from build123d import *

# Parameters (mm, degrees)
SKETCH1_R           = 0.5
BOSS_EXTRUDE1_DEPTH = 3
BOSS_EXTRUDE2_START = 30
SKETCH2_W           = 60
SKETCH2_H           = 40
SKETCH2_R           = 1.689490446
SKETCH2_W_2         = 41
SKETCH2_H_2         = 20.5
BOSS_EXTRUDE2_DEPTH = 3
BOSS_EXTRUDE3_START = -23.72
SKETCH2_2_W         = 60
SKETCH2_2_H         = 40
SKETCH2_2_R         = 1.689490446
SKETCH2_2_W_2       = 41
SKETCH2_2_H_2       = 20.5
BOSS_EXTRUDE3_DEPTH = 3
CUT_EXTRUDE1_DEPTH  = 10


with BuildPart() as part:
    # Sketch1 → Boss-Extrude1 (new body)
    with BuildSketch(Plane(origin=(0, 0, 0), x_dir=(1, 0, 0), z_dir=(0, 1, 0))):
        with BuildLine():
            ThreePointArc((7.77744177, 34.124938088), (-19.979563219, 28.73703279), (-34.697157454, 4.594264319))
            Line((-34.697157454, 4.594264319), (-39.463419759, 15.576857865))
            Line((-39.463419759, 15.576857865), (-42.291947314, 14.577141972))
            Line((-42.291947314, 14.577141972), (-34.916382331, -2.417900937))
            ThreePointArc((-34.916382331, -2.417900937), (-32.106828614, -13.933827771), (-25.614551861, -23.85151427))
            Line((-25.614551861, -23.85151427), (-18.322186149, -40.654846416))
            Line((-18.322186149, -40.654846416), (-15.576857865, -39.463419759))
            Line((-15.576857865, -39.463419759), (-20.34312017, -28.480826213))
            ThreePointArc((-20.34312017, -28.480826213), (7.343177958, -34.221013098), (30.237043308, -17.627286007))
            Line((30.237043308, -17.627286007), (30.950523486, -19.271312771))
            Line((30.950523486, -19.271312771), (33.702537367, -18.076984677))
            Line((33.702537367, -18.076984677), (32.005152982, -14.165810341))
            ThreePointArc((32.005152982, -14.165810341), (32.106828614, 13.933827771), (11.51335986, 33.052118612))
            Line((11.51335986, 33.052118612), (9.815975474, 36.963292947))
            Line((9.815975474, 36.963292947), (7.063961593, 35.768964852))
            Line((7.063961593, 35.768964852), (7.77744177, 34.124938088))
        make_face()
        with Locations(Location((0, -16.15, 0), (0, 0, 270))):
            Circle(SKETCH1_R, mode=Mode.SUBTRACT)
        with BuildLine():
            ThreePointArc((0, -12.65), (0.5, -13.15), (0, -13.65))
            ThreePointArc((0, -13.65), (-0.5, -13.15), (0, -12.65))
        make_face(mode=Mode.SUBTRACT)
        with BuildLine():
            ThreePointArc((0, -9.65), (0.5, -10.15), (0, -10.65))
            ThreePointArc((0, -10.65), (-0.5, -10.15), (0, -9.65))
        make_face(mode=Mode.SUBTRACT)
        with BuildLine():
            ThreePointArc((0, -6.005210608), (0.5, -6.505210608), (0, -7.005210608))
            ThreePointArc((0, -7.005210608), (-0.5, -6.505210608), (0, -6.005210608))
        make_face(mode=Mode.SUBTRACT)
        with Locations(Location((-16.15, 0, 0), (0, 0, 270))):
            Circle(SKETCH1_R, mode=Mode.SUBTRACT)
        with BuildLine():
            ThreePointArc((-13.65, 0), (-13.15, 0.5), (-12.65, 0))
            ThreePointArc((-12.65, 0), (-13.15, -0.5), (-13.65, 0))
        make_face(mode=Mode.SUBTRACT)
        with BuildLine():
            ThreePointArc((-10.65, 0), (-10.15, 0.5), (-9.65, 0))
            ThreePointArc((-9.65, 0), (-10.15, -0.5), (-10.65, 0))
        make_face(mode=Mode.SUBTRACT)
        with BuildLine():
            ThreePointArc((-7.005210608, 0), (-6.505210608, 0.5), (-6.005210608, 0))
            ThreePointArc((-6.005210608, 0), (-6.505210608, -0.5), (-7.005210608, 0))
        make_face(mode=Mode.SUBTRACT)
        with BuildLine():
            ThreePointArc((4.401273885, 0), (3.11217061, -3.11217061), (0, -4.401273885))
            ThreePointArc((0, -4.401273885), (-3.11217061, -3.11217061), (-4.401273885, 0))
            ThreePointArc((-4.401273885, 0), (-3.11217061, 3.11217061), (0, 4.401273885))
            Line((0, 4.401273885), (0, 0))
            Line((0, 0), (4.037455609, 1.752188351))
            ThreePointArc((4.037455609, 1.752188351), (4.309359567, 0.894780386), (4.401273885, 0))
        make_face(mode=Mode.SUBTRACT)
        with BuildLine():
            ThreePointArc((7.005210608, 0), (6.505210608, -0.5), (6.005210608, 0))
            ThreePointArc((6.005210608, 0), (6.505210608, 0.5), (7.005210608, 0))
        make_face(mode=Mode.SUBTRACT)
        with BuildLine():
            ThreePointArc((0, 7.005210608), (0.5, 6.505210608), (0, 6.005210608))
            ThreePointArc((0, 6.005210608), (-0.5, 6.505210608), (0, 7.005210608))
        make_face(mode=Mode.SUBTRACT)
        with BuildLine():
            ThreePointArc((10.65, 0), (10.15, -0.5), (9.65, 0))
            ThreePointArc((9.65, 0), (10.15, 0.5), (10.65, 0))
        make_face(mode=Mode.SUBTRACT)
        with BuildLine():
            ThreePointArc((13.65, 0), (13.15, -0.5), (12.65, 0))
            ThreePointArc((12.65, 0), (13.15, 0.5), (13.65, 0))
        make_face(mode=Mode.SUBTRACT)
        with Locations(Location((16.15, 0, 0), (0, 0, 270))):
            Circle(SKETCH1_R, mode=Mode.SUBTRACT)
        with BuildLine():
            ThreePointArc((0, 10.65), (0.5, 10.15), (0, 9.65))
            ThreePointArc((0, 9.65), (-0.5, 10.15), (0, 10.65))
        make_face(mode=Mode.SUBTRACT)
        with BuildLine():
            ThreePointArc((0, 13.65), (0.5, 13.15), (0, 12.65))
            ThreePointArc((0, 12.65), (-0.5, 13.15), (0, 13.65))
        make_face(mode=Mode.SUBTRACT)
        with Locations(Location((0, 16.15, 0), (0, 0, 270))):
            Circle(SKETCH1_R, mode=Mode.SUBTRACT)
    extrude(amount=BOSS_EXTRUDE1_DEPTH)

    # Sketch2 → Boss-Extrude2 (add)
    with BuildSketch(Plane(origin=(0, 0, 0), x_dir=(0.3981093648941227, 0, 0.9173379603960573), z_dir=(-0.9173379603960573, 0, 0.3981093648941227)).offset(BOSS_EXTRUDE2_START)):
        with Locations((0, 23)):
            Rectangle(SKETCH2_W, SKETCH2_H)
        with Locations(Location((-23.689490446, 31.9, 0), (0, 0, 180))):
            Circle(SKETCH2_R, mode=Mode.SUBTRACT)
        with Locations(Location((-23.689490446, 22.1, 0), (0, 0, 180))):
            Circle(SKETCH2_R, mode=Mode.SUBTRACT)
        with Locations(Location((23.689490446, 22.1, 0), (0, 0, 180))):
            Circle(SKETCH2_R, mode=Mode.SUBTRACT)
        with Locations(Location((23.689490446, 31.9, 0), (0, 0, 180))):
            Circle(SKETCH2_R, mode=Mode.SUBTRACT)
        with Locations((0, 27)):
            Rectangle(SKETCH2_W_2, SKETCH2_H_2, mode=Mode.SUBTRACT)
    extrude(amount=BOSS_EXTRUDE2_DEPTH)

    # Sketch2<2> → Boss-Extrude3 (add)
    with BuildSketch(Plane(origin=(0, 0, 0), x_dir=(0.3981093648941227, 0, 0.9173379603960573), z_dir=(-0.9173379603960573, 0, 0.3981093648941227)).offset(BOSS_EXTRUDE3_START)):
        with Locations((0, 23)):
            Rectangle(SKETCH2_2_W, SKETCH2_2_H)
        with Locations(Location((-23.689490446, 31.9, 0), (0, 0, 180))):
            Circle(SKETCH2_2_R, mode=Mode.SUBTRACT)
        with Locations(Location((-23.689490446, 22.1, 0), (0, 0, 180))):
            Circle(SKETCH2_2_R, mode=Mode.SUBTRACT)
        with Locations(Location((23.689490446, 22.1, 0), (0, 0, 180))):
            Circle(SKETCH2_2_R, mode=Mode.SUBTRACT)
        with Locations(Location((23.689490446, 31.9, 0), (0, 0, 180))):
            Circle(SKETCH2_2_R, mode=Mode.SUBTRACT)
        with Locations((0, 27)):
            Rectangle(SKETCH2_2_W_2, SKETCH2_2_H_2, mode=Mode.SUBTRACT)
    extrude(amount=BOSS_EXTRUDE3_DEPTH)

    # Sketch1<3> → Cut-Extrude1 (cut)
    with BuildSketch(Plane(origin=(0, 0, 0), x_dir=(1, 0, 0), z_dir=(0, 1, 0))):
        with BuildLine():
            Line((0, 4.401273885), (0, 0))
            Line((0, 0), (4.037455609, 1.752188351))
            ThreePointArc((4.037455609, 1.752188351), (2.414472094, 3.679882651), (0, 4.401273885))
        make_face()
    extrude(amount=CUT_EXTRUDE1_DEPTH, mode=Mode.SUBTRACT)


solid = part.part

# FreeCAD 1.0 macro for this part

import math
import FreeCAD as App
import Part
import Sketcher
Q = App.Units.Quantity


def add_polygon(sketch, points):
    """Adds a closed chain of lines whose ends are joined by coincident constraints."""
    first, n = sketch.GeometryCount, len(points)
    for a, b in zip(points, points[1:] + points[:1]):
        sketch.addGeometry(Part.LineSegment(App.Vector(*a, 0), App.Vector(*b, 0)), False)
    for i in range(n):
        sketch.addConstraint(Sketcher.Constraint("Coincident", first + i, 2, first + (i + 1) % n, 1))

doc = App.newDocument("Part")
body = doc.addObject("PartDesign::Body", "Body")

# Sketch on XZ plane
sketch1 = body.newObject("Sketcher::SketchObject", "Sketch")
sketch1.AttachmentSupport = (doc.getObject("XZ_Plane"), [""])
sketch1.MapMode = "FlatFace"
sketch1.addGeometry([
    Part.ArcOfCircle(Part.Circle(App.Vector(0, 0, 0), App.Vector(0, 0, 1), 35), math.radians(-172.45732), math.radians(-77.160976)),  # 0
    Part.LineSegment(App.Vector(-34.697157, -4.594264, 0), App.Vector(-39.46342, -15.576858, 0)),  # 1
    Part.LineSegment(App.Vector(-39.46342, -15.576858, 0), App.Vector(-42.291947, -14.577142, 0)),  # 2
    Part.LineSegment(App.Vector(-42.291947, -14.577142, 0), App.Vector(-34.916382, 2.417901, 0)),  # 3
    Part.ArcOfCircle(Part.Circle(App.Vector(0, 0, 0), App.Vector(0, 0, 1), 35), math.radians(137.041235), math.radians(176.038687)),  # 4
    Part.LineSegment(App.Vector(-25.614552, 23.851514, 0), App.Vector(-18.322186, 40.654846, 0)),  # 5
    Part.LineSegment(App.Vector(-18.322186, 40.654846, 0), App.Vector(-15.576858, 39.46342, 0)),  # 6
    Part.LineSegment(App.Vector(-15.576858, 39.46342, 0), App.Vector(-20.34312, 28.480826, 0)),  # 7
    Part.ArcOfCircle(Part.Circle(App.Vector(0, 0, 0), App.Vector(0, 0, 1), 35), math.radians(30.240898), math.radians(125.537242)),  # 8
    Part.LineSegment(App.Vector(30.237043, 17.627286, 0), App.Vector(30.950523, 19.271313, 0)),  # 9
    Part.LineSegment(App.Vector(30.950523, 19.271313, 0), App.Vector(33.702537, 18.076985, 0)),  # 10
    Part.LineSegment(App.Vector(33.702537, 18.076985, 0), App.Vector(32.005153, 14.16581, 0)),  # 11
    Part.ArcOfCircle(Part.Circle(App.Vector(0, 0, 0), App.Vector(0, 0, 1), 35), math.radians(-70.794752), math.radians(23.874675)),  # 12
    Part.LineSegment(App.Vector(11.51336, -33.052119, 0), App.Vector(9.815975, -36.963293, 0)),  # 13
    Part.LineSegment(App.Vector(9.815975, -36.963293, 0), App.Vector(7.063962, -35.768965, 0)),  # 14
    Part.LineSegment(App.Vector(7.063962, -35.768965, 0), App.Vector(7.777442, -34.124938, 0)),  # 15
    Part.Circle(App.Vector(0, 16.15, 0), App.Vector(0, 0, 1), 0.5),  # 16
    Part.Circle(App.Vector(0, 13.15, 0), App.Vector(0, 0, 1), 0.5),  # 17
    Part.Circle(App.Vector(0, 10.15, 0), App.Vector(0, 0, 1), 0.5),  # 18
    Part.Circle(App.Vector(0, 6.505211, 0), App.Vector(0, 0, 1), 0.5),  # 19
    Part.Circle(App.Vector(-16.15, 0, 0), App.Vector(0, 0, 1), 0.5),  # 20
    Part.Circle(App.Vector(-13.15, 0, 0), App.Vector(0, 0, 1), 0.5),  # 21
    Part.Circle(App.Vector(-10.15, 0, 0), App.Vector(0, 0, 1), 0.5),  # 22
    Part.Circle(App.Vector(-6.505211, 0, 0), App.Vector(0, 0, 1), 0.5),  # 23
    Part.ArcOfCircle(Part.Circle(App.Vector(0, 0, 0), App.Vector(0, 0, 1), 4.401274), math.radians(-23.460039), math.radians(0)),  # 24
    Part.ArcOfCircle(Part.Circle(App.Vector(0, 0, 0), App.Vector(0, 0, 1), 4.401274), math.radians(0), math.radians(90)),  # 25
    Part.ArcOfCircle(Part.Circle(App.Vector(0, 0, 0), App.Vector(0, 0, 1), 4.401274), math.radians(90), math.radians(180)),  # 26
    Part.ArcOfCircle(Part.Circle(App.Vector(0, 0, 0), App.Vector(0, 0, 1), 4.401274), math.radians(180), math.radians(270)),  # 27
    Part.LineSegment(App.Vector(0, -4.401274, 0), App.Vector(0, 0, 0)),  # 28
    Part.LineSegment(App.Vector(0, 0, 0), App.Vector(4.037456, -1.752188, 0)),  # 29
    Part.Circle(App.Vector(6.505211, 0, 0), App.Vector(0, 0, 1), 0.5),  # 30
    Part.Circle(App.Vector(0, -6.505211, 0), App.Vector(0, 0, 1), 0.5),  # 31
    Part.Circle(App.Vector(10.15, 0, 0), App.Vector(0, 0, 1), 0.5),  # 32
    Part.Circle(App.Vector(13.15, 0, 0), App.Vector(0, 0, 1), 0.5),  # 33
    Part.Circle(App.Vector(16.15, 0, 0), App.Vector(0, 0, 1), 0.5),  # 34
    Part.Circle(App.Vector(0, -10.15, 0), App.Vector(0, 0, 1), 0.5),  # 35
    Part.Circle(App.Vector(0, -13.15, 0), App.Vector(0, 0, 1), 0.5),  # 36
    Part.Circle(App.Vector(0, -16.15, 0), App.Vector(0, 0, 1), 0.5),  # 37
], False)
sketch1.addConstraint([
    Sketcher.Constraint("Coincident", 0, 1, 1, 1),
    Sketcher.Constraint("Coincident", 1, 2, 2, 1),
    Sketcher.Constraint("Coincident", 2, 2, 3, 1),
    Sketcher.Constraint("Coincident", 3, 2, 4, 2),
    Sketcher.Constraint("Coincident", 4, 1, 5, 1),
    Sketcher.Constraint("Coincident", 5, 2, 6, 1),
    Sketcher.Constraint("Coincident", 6, 2, 7, 1),
    Sketcher.Constraint("Coincident", 7, 2, 8, 2),
    Sketcher.Constraint("Coincident", 8, 1, 9, 1),
    Sketcher.Constraint("Coincident", 9, 2, 10, 1),
    Sketcher.Constraint("Coincident", 10, 2, 11, 1),
    Sketcher.Constraint("Coincident", 11, 2, 12, 2),
    Sketcher.Constraint("Coincident", 12, 1, 13, 1),
    Sketcher.Constraint("Coincident", 13, 2, 14, 1),
    Sketcher.Constraint("Coincident", 14, 2, 15, 1),
    Sketcher.Constraint("Coincident", 15, 2, 0, 2),
    Sketcher.Constraint("Tangent", 24, 2, 25, 1),
    Sketcher.Constraint("Tangent", 25, 2, 26, 1),
    Sketcher.Constraint("Tangent", 26, 2, 27, 1),
    Sketcher.Constraint("Coincident", 27, 2, 28, 1),
    Sketcher.Constraint("Coincident", 28, 2, 29, 1),
    Sketcher.Constraint("Coincident", 29, 2, 24, 1),
    Sketcher.Constraint("Vertical", 28),
    Sketcher.Constraint("Coincident", 0, 3, -1, 1),
    Sketcher.Constraint("Coincident", 4, 3, -1, 1),
    Sketcher.Constraint("Coincident", 8, 3, -1, 1),
    Sketcher.Constraint("Coincident", 12, 3, -1, 1),
    Sketcher.Constraint("Coincident", 24, 3, -1, 1),
    Sketcher.Constraint("Coincident", 26, 3, -1, 1),
    Sketcher.Constraint("Coincident", 28, 2, -1, 1),
    Sketcher.Constraint("Equal", 0, 4),
    Sketcher.Constraint("Equal", 4, 8),
    Sketcher.Constraint("Equal", 8, 12),
    Sketcher.Constraint("Equal", 16, 17),
    Sketcher.Constraint("Equal", 17, 18),
    Sketcher.Constraint("Equal", 18, 19),
    Sketcher.Constraint("Equal", 19, 20),
    Sketcher.Constraint("Equal", 20, 21),
    Sketcher.Constraint("Equal", 21, 22),
    Sketcher.Constraint("Equal", 22, 23),
    Sketcher.Constraint("Equal", 26, 27),
    Sketcher.Constraint("Equal", 23, 30),
    Sketcher.Constraint("Equal", 30, 31),
    Sketcher.Constraint("Equal", 31, 32),
    Sketcher.Constraint("Equal", 32, 33),
    Sketcher.Constraint("Equal", 33, 34),
    Sketcher.Constraint("Equal", 34, 35),
    Sketcher.Constraint("Equal", 35, 36),
    Sketcher.Constraint("Equal", 36, 37),
    Sketcher.Constraint("Symmetric", 23, 3, 30, 3, -1, 1),
    Sketcher.Constraint("Symmetric", 19, 3, 31, 3, -1, 1),
    Sketcher.Constraint("Symmetric", 22, 3, 32, 3, -1, 1),
    Sketcher.Constraint("Symmetric", 21, 3, 33, 3, -1, 1),
    Sketcher.Constraint("Symmetric", 20, 3, 34, 3, -1, 1),
    Sketcher.Constraint("Symmetric", 18, 3, 35, 3, -1, 1),
    Sketcher.Constraint("Symmetric", 17, 3, 36, 3, -1, 1),
    Sketcher.Constraint("Symmetric", 16, 3, 37, 3, -1, 1),
    Sketcher.Constraint("PointOnObject", 16, 3, -2),
    Sketcher.Constraint("PointOnObject", 17, 3, -2),
    Sketcher.Constraint("PointOnObject", 18, 3, -2),
    Sketcher.Constraint("PointOnObject", 19, 3, -2),
    Sketcher.Constraint("PointOnObject", 20, 3, -1),
    Sketcher.Constraint("PointOnObject", 21, 3, -1),
    Sketcher.Constraint("PointOnObject", 22, 3, -1),
    Sketcher.Constraint("PointOnObject", 23, 3, -1),
    Sketcher.Constraint("PointOnObject", 24, 2, -1),
    Sketcher.Constraint("PointOnObject", 25, 2, -2),
    Sketcher.Constraint("PointOnObject", 26, 2, -1),
    Sketcher.Constraint("Parallel", 1, 3),
    Sketcher.Constraint("Parallel", 3, 5),
    Sketcher.Constraint("Perpendicular", 5, 6),
    Sketcher.Constraint("Perpendicular", 6, 7),
    Sketcher.Constraint("Parallel", 7, 9),
    Sketcher.Constraint("Perpendicular", 9, 10),
    Sketcher.Constraint("Perpendicular", 10, 11),
    Sketcher.Constraint("Parallel", 11, 13),
    Sketcher.Constraint("Perpendicular", 13, 14),
    Sketcher.Constraint("Perpendicular", 14, 15),
    Sketcher.Constraint("Perpendicular", 15, 29),
    Sketcher.Constraint("Equal", 1, 7),
    Sketcher.Constraint("Equal", 2, 10),
    Sketcher.Constraint("Equal", 11, 13),
    Sketcher.Constraint("Equal", 10, 14),
    Sketcher.Constraint("Equal", 9, 15),
    Sketcher.Constraint("Diameter", 16, Q("1 mm")),
    Sketcher.Constraint("Radius", 0, Q("35 mm")),
    Sketcher.Constraint("Distance", 2, Q("3 mm")),
    Sketcher.Constraint("DistanceY", 17, 3, 16, 3, Q("3 mm")),
    Sketcher.Constraint("DistanceY", 18, 3, 17, 3, Q("3 mm")),
    Sketcher.Constraint("DistanceX", 20, 3, 21, 3, Q("3 mm")),
    Sketcher.Constraint("DistanceX", 21, 3, 22, 3, Q("3 mm")),
    Sketcher.Constraint("DistanceY", -1, 1, 16, 3, Q("16.15 mm")),
    Sketcher.Constraint("DistanceX", 20, 3, -1, 1, Q("16.15 mm")),
    Sketcher.Constraint("Radius", 24, Q("4.401274 mm")),
    Sketcher.Constraint("DistanceY", -1, 1, 3, 2, Q("2.417901 mm")),
    Sketcher.Constraint("DistanceY", 8, 1, 10, 2, Q("0.449699 mm")),
    Sketcher.Constraint("Distance", 3, Q("18.526479 mm")),
    Sketcher.Constraint("Distance", 6, Q("2.992712 mm")),
    Sketcher.Constraint("Distance", 9, Q("1.792171 mm")),
    Sketcher.Constraint("DistanceY", -1, 1, 19, 3, Q("6.505211 mm")),
    Sketcher.Constraint("DistanceX", 23, 3, -1, 1, Q("6.505211 mm")),
    Sketcher.Constraint("DistanceX", 1, 2, -1, 1, Q("39.46342 mm")),
    Sketcher.Constraint("DistanceX", 4, 1, -1, 1, Q("25.614552 mm")),
    Sketcher.Constraint("DistanceY", -1, 1, 11, 2, Q("14.16581 mm")),
])
pad1 = body.newObject("PartDesign::Pad", "Pad")
pad1.Profile = sketch1
pad1.Length = 3
pad1.Reversed = True

# Sketch on an angled plane
sketch2 = body.newObject("Sketcher::SketchObject", "Sketch001")
sketch2.Placement = App.Placement(App.Vector(-27.520139, 0, 11.943281), App.Rotation(App.Vector(0.398109365, 0, 0.91733796), App.Vector(0, 0.999999999, 0), App.Vector(-0.91733796, 0, 0.398109365), "ZXY"))
add_polygon(sketch2, [(-30, 43), (-30, 3), (30, 3), (30, 43)])  # lines 0-3
sketch2.addGeometry(Part.Circle(App.Vector(-23.68949, 22.1, 0), App.Vector(0, 0, 1), 1.68949), False)  # 4
sketch2.addGeometry(Part.Circle(App.Vector(23.68949, 22.1, 0), App.Vector(0, 0, 1), 1.68949), False)  # 5
sketch2.addGeometry(Part.Circle(App.Vector(-23.68949, 31.9, 0), App.Vector(0, 0, 1), 1.68949), False)  # 6
add_polygon(sketch2, [(20.5, 16.75), (-20.5, 16.75), (-20.5, 37.25), (20.5, 37.25)])  # lines 7-10
sketch2.addGeometry(Part.Circle(App.Vector(23.68949, 31.9, 0), App.Vector(0, 0, 1), 1.68949), False)  # 11
sketch2.addConstraint([
    Sketcher.Constraint("Vertical", 0),
    Sketcher.Constraint("Horizontal", 1),
    Sketcher.Constraint("Vertical", 2),
    Sketcher.Constraint("Horizontal", 3),
    Sketcher.Constraint("Horizontal", 7),
    Sketcher.Constraint("Vertical", 8),
    Sketcher.Constraint("Horizontal", 9),
    Sketcher.Constraint("Vertical", 10),
    Sketcher.Constraint("Equal", 4, 5),
    Sketcher.Constraint("Equal", 5, 6),
    Sketcher.Constraint("Equal", 6, 11),
    Sketcher.Constraint("Symmetric", 4, 3, 5, 3, -2),
    Sketcher.Constraint("Symmetric", 6, 3, 11, 3, -2),
    Sketcher.Constraint("Vertical", 4, 3, 6, 3),
    Sketcher.Constraint("DistanceX", 1, 1, 1, 2, Q("60 mm")),
    Sketcher.Constraint("DistanceX", 7, 2, 7, 1, Q("41 mm")),
    Sketcher.Constraint("DistanceY", 0, 2, 0, 1, Q("40 mm")),
    Sketcher.Constraint("DistanceY", 8, 1, 8, 2, Q("20.5 mm")),
    Sketcher.Constraint("DistanceX", 0, 2, -1, 1, Q("30 mm")),
    Sketcher.Constraint("DistanceY", -1, 1, 0, 2, Q("3 mm")),
    Sketcher.Constraint("DistanceY", -1, 1, 4, 3, Q("22.1 mm")),
    Sketcher.Constraint("DistanceY", -1, 1, 6, 3, Q("31.9 mm")),
    Sketcher.Constraint("DistanceX", 7, 2, -1, 1, Q("20.5 mm")),
    Sketcher.Constraint("Diameter", 4, Q("3.378981 mm")),
    Sketcher.Constraint("DistanceY", -1, 1, 7, 2, Q("16.75 mm")),
    Sketcher.Constraint("DistanceX", 4, 3, -1, 1, Q("23.68949 mm")),
])
pad2 = body.newObject("PartDesign::Pad", "Pad001")
pad2.Profile = sketch2
pad2.Length = 3

# Sketch on an angled plane
sketch3 = body.newObject("Sketcher::SketchObject", "Sketch002")
sketch3.Placement = App.Placement(App.Vector(21.759256, 0, -9.443154), App.Rotation(App.Vector(0.398109365, 0, 0.91733796), App.Vector(0, 0.999999999, 0), App.Vector(-0.91733796, 0, 0.398109365), "ZXY"))
add_polygon(sketch3, [(-30, 43), (-30, 3), (30, 3), (30, 43)])  # lines 0-3
sketch3.addGeometry(Part.Circle(App.Vector(-23.68949, 22.1, 0), App.Vector(0, 0, 1), 1.68949), False)  # 4
sketch3.addGeometry(Part.Circle(App.Vector(23.68949, 22.1, 0), App.Vector(0, 0, 1), 1.68949), False)  # 5
sketch3.addGeometry(Part.Circle(App.Vector(-23.68949, 31.9, 0), App.Vector(0, 0, 1), 1.68949), False)  # 6
add_polygon(sketch3, [(20.5, 16.75), (-20.5, 16.75), (-20.5, 37.25), (20.5, 37.25)])  # lines 7-10
sketch3.addGeometry(Part.Circle(App.Vector(23.68949, 31.9, 0), App.Vector(0, 0, 1), 1.68949), False)  # 11
sketch3.addConstraint([
    Sketcher.Constraint("Vertical", 0),
    Sketcher.Constraint("Horizontal", 1),
    Sketcher.Constraint("Vertical", 2),
    Sketcher.Constraint("Horizontal", 3),
    Sketcher.Constraint("Horizontal", 7),
    Sketcher.Constraint("Vertical", 8),
    Sketcher.Constraint("Horizontal", 9),
    Sketcher.Constraint("Vertical", 10),
    Sketcher.Constraint("Equal", 4, 5),
    Sketcher.Constraint("Equal", 5, 6),
    Sketcher.Constraint("Equal", 6, 11),
    Sketcher.Constraint("Symmetric", 4, 3, 5, 3, -2),
    Sketcher.Constraint("Symmetric", 6, 3, 11, 3, -2),
    Sketcher.Constraint("Vertical", 4, 3, 6, 3),
    Sketcher.Constraint("DistanceX", 1, 1, 1, 2, Q("60 mm")),
    Sketcher.Constraint("DistanceX", 7, 2, 7, 1, Q("41 mm")),
    Sketcher.Constraint("DistanceY", 0, 2, 0, 1, Q("40 mm")),
    Sketcher.Constraint("DistanceY", 8, 1, 8, 2, Q("20.5 mm")),
    Sketcher.Constraint("DistanceX", 0, 2, -1, 1, Q("30 mm")),
    Sketcher.Constraint("DistanceY", -1, 1, 0, 2, Q("3 mm")),
    Sketcher.Constraint("DistanceY", -1, 1, 4, 3, Q("22.1 mm")),
    Sketcher.Constraint("DistanceY", -1, 1, 6, 3, Q("31.9 mm")),
    Sketcher.Constraint("DistanceX", 7, 2, -1, 1, Q("20.5 mm")),
    Sketcher.Constraint("Diameter", 4, Q("3.378981 mm")),
    Sketcher.Constraint("DistanceY", -1, 1, 7, 2, Q("16.75 mm")),
    Sketcher.Constraint("DistanceX", 4, 3, -1, 1, Q("23.68949 mm")),
])
pad3 = body.newObject("PartDesign::Pad", "Pad002")
pad3.Profile = sketch3
pad3.Length = 3

# Sketch on XZ plane
sketch4 = body.newObject("Sketcher::SketchObject", "Sketch003")
sketch4.AttachmentSupport = (doc.getObject("XZ_Plane"), [""])
sketch4.MapMode = "FlatFace"
sketch4.addGeometry([
    Part.LineSegment(App.Vector(0, -4.401274, 0), App.Vector(0, 0, 0)),
    Part.LineSegment(App.Vector(0, 0, 0), App.Vector(4.037456, -1.752188, 0)),
    Part.ArcOfCircle(Part.Circle(App.Vector(0, 0, 0), App.Vector(0, 0, 1), 4.401274), math.radians(-90), math.radians(-23.460039)),
], False)
sketch4.addConstraint([
    Sketcher.Constraint("Coincident", 0, 2, 1, 1),
    Sketcher.Constraint("Coincident", 1, 2, 2, 2),
    Sketcher.Constraint("Coincident", 2, 1, 0, 1),
    Sketcher.Constraint("Vertical", 0),
    Sketcher.Constraint("Coincident", 2, 3, -1, 1),
    Sketcher.Constraint("Coincident", 0, 2, -1, 1),
    Sketcher.Constraint("Radius", 2, Q("4.401274 mm")),
    Sketcher.Constraint("DistanceY", 1, 2, -1, 1, Q("1.752188 mm")),
])
pocket1 = body.newObject("PartDesign::Pocket", "Pocket")
pocket1.Profile = sketch4
pocket1.Length = 10

doc.recompute()
